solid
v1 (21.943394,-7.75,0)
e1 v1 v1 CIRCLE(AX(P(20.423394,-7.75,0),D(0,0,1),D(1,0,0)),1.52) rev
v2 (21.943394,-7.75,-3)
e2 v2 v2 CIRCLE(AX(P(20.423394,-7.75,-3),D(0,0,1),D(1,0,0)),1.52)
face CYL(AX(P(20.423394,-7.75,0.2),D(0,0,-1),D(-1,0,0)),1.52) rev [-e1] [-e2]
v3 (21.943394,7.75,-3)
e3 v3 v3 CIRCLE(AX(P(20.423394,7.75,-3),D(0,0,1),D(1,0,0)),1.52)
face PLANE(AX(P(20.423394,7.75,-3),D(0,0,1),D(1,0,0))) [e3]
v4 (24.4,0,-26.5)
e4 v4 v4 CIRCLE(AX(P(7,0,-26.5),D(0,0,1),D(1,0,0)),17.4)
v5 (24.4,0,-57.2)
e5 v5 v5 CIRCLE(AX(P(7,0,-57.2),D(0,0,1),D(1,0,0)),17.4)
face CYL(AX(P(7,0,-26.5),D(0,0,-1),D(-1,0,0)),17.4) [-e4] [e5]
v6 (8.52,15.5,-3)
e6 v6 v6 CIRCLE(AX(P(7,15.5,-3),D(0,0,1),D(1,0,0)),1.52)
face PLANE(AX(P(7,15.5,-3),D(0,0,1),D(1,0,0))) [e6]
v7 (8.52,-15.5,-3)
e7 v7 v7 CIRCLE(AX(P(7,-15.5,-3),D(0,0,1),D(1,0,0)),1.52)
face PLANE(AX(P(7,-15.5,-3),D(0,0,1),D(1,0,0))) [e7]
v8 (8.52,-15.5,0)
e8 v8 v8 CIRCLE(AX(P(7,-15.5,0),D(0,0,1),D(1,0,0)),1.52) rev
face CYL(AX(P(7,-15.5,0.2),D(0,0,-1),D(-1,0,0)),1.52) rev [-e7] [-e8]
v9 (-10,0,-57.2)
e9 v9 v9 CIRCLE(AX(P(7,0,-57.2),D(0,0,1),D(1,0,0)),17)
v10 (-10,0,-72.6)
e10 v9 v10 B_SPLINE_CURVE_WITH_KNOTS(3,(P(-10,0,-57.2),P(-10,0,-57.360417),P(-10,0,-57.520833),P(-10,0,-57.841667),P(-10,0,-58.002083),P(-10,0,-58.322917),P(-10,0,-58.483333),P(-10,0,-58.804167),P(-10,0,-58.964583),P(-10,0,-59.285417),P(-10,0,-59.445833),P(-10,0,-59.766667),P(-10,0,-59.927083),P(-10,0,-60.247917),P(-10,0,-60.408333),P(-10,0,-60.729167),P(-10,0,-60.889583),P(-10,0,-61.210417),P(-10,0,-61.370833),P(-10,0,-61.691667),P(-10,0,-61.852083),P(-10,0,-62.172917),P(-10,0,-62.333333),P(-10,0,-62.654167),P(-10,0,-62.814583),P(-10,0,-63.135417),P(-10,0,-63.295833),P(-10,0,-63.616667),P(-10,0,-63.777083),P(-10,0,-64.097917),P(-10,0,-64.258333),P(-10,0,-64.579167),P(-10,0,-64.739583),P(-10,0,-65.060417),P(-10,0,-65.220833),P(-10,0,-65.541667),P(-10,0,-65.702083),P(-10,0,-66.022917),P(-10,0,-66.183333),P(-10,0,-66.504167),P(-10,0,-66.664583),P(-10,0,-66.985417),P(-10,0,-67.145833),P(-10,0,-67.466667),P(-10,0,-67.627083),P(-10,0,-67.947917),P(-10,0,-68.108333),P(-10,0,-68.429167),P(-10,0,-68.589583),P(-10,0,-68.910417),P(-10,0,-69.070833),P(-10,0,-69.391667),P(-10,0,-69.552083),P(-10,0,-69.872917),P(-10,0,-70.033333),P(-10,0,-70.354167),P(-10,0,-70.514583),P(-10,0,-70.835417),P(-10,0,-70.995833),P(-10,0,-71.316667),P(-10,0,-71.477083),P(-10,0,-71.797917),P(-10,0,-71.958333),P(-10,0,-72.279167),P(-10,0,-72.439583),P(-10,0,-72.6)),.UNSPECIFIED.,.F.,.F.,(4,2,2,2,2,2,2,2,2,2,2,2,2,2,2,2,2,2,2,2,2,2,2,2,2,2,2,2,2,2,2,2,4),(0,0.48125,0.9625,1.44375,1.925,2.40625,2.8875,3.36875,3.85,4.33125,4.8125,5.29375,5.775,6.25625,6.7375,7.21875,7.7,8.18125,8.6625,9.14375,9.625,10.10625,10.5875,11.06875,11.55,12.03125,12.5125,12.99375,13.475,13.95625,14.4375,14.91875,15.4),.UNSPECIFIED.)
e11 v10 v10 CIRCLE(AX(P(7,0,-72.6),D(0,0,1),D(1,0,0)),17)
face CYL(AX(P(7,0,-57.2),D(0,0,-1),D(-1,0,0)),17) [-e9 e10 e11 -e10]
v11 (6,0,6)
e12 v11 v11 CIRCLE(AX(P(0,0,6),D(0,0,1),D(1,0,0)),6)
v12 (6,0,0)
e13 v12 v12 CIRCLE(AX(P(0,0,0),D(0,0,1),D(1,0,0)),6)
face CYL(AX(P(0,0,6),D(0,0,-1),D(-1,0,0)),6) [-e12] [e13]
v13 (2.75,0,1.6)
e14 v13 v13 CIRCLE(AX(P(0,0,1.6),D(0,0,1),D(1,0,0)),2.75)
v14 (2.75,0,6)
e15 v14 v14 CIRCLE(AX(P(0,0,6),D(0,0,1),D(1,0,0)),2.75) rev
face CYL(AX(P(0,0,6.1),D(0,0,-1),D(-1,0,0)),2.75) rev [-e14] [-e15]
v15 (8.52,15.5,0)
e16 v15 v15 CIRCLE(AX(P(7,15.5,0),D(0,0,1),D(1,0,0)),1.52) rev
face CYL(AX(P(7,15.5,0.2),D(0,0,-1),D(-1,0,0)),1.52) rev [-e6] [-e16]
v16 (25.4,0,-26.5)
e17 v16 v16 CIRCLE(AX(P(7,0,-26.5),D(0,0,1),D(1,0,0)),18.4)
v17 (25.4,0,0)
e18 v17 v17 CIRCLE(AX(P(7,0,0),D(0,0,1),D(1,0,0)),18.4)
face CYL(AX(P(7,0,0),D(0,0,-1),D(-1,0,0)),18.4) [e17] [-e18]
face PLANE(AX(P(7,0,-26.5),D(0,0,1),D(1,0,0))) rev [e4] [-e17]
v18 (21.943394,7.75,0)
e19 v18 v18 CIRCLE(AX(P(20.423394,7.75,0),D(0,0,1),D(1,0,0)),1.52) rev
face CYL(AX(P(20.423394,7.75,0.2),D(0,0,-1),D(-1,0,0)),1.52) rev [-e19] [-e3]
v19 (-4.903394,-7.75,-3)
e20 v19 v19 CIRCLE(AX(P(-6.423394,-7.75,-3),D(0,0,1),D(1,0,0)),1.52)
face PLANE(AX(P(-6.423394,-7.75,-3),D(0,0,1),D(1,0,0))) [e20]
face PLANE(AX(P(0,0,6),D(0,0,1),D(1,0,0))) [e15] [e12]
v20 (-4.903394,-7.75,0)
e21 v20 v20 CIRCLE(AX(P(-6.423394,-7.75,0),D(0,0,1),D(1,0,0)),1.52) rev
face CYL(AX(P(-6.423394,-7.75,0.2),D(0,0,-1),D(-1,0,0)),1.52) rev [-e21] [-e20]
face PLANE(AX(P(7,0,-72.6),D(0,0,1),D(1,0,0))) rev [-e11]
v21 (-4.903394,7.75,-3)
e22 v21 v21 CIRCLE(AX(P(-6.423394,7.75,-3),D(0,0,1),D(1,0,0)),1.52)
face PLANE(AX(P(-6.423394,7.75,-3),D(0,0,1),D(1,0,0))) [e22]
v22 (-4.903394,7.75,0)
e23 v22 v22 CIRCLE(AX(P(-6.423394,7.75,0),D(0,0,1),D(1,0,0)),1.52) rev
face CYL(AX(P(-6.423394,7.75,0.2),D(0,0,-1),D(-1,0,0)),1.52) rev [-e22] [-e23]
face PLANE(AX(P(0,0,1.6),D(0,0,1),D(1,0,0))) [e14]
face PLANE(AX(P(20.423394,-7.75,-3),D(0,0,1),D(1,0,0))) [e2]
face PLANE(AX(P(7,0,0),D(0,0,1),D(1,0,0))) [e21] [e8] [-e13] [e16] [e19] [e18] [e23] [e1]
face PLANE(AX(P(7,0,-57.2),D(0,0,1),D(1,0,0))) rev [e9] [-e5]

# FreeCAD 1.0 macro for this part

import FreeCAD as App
import Part
import Sketcher
from FreeCAD import Vector

doc = App.newDocument("Part")
body = doc.addObject("PartDesign::Body", "Body")

sketch1 = body.newObject("Sketcher::SketchObject", "Sketch")
sketch1.AttachmentSupport = (doc.getObject("XY_Plane"), [""])
sketch1.MapMode = "FlatFace"
sketch1.AttachmentOffset = App.Placement(Vector(0, 0, -57.2), App.Rotation())
sketch1.addGeometry(Part.Circle(Vector(7, 0, 0), Vector(0, 0, 1), 17), False)
sketch1.addConstraint(Sketcher.Constraint("PointOnObject", 0, 3, -1))
sketch1.addConstraint(Sketcher.Constraint("Diameter", 0, 34.8))
sketch1.addConstraint(Sketcher.Constraint("DistanceX", -1, 1, 0, 3, 7.0))
pad1 = body.newObject("PartDesign::Pad", "Pad")
pad1.Profile = sketch1
pad1.Length = 30.7

sketch2 = body.newObject("Sketcher::SketchObject", "Sketch001")
sketch2.AttachmentSupport = (doc.getObject("XY_Plane"), [""])
sketch2.MapMode = "FlatFace"
sketch2.AttachmentOffset = App.Placement(Vector(0, 0, -26.5), App.Rotation())
sketch2.addGeometry(Part.Circle(Vector(7, 0, 0), Vector(0, 0, 1), 18), False)
sketch2.addConstraint(Sketcher.Constraint("PointOnObject", 0, 3, -1))
sketch2.addConstraint(Sketcher.Constraint("Diameter", 0, 36.8))
sketch2.addConstraint(Sketcher.Constraint("DistanceX", -1, 1, 0, 3, 7.0))
pad2 = body.newObject("PartDesign::Pad", "Pad001")
pad2.Profile = sketch2
pad2.Length = 26.5

sketch3 = body.newObject("Sketcher::SketchObject", "Sketch002")
sketch3.AttachmentSupport = (doc.getObject("XY_Plane"), [""])
sketch3.MapMode = "FlatFace"
sketch3.AttachmentOffset = App.Placement(Vector(0, 0, -3), App.Rotation())
sketch3.addGeometry(Part.Circle(Vector(20.4, 7.8, 0), Vector(0, 0, 1), 1.5), False)
sketch3.addGeometry(Part.Circle(Vector(7, 15.5, 0), Vector(0, 0, 1), 1.5), False)
sketch3.addGeometry(Part.Circle(Vector(-6.4, 7.8, 0), Vector(0, 0, 1), 1.5), False)
sketch3.addGeometry(Part.Circle(Vector(-6.4, -7.8, 0), Vector(0, 0, 1), 1.5), False)
sketch3.addGeometry(Part.Circle(Vector(7, -15.5, 0), Vector(0, 0, 1), 1.5), False)
sketch3.addGeometry(Part.Circle(Vector(20.4, -7.8, 0), Vector(0, 0, 1), 1.5), False)
sketch3.addConstraint(Sketcher.Constraint("Equal", 0, 1))
sketch3.addConstraint(Sketcher.Constraint("Equal", 1, 2))
sketch3.addConstraint(Sketcher.Constraint("Equal", 2, 3))
sketch3.addConstraint(Sketcher.Constraint("Equal", 3, 4))
sketch3.addConstraint(Sketcher.Constraint("Equal", 4, 5))
sketch3.addConstraint(Sketcher.Constraint("Symmetric", 2, 3, 3, 3, -1))
sketch3.addConstraint(Sketcher.Constraint("Symmetric", 1, 3, 4, 3, -1))
sketch3.addConstraint(Sketcher.Constraint("Symmetric", 0, 3, 5, 3, -1))
sketch3.addConstraint(Sketcher.Constraint("Horizontal", 0, 3, 2, 3))
sketch3.addConstraint(Sketcher.Constraint("Diameter", 0, 3.04))
sketch3.addConstraint(Sketcher.Constraint("DistanceX", -1, 1, 1, 3, 7.0))
sketch3.addConstraint(Sketcher.Constraint("DistanceY", 4, 3, 1, 3, 31.0))
sketch3.addConstraint(Sketcher.Constraint("DistanceY", 3, 3, 2, 3, 15.5))
sketch3.addConstraint(Sketcher.Constraint("DistanceX", -1, 1, 0, 3, 20.423394))
sketch3.addConstraint(Sketcher.Constraint("DistanceX", 2, 3, -1, 1, 6.423394))
pocket1 = body.newObject("PartDesign::Pocket", "Pocket")
pocket1.Profile = sketch3
pocket1.Length = 3.2
pocket1.Reversed = True

sketch4 = body.newObject("Sketcher::SketchObject", "Sketch003")
sketch4.AttachmentSupport = (doc.getObject("XY_Plane"), [""])
sketch4.MapMode = "FlatFace"
sketch4.addGeometry(Part.Circle(Vector(0, 0, 0), Vector(0, 0, 1), 6), False)
sketch4.addConstraint(Sketcher.Constraint("Coincident", 0, 3, -1, 1))
sketch4.addConstraint(Sketcher.Constraint("Diameter", 0, 12.0))
pad3 = body.newObject("PartDesign::Pad", "Pad002")
pad3.Profile = sketch4
pad3.Length = 6

sketch5 = body.newObject("Sketcher::SketchObject", "Sketch004")
sketch5.AttachmentSupport = (doc.getObject("XY_Plane"), [""])
sketch5.MapMode = "FlatFace"
sketch5.AttachmentOffset = App.Placement(Vector(0, 0, -72.6), App.Rotation())
sketch5.addGeometry(Part.Circle(Vector(7, 0, 0), Vector(0, 0, 1), 17), False)
sketch5.addConstraint(Sketcher.Constraint("PointOnObject", 0, 3, -1))
sketch5.addConstraint(Sketcher.Constraint("Diameter", 0, 34.0))
sketch5.addConstraint(Sketcher.Constraint("DistanceX", -1, 1, 0, 3, 7.0))
pad4 = body.newObject("PartDesign::Pad", "Pad003")
pad4.Profile = sketch5
pad4.Length = 15.4

sketch6 = body.newObject("Sketcher::SketchObject", "Sketch005")
sketch6.AttachmentSupport = (doc.getObject("XY_Plane"), [""])
sketch6.MapMode = "FlatFace"
sketch6.AttachmentOffset = App.Placement(Vector(0, 0, 1.6), App.Rotation())
sketch6.addGeometry(Part.Circle(Vector(0, 0, 0), Vector(0, 0, 1), 2.8), False)
sketch6.addConstraint(Sketcher.Constraint("Coincident", 0, 3, -1, 1))
sketch6.addConstraint(Sketcher.Constraint("Diameter", 0, 5.5))
pocket2 = body.newObject("PartDesign::Pocket", "Pocket001")
pocket2.Profile = sketch6
pocket2.Length = 4.5
pocket2.Reversed = True

doc.recompute()
